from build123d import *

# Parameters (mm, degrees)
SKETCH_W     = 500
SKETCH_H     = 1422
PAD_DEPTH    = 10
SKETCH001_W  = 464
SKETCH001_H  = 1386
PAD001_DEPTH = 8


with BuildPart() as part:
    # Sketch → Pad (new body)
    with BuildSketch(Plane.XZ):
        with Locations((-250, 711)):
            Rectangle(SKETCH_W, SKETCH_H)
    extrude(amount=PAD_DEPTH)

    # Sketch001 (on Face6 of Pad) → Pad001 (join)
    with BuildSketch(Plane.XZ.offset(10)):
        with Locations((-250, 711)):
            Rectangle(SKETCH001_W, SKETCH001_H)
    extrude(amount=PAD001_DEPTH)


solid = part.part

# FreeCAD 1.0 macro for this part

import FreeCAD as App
import Part
import Sketcher

doc = App.newDocument("Part")
body = doc.addObject("PartDesign::Body", "Body")

# Sketch on XZ plane
sketch1 = body.newObject("Sketcher::SketchObject", "Sketch")
sketch1.AttachmentSupport = (doc.getObject("XZ_Plane"), [""])
sketch1.MapMode = "FlatFace"
sketch1.addGeometry(Part.LineSegment(App.Vector(-500, 1422, 0), App.Vector(-500, 0, 0)), False)
sketch1.addGeometry(Part.LineSegment(App.Vector(-500, 0, 0), App.Vector(0, 0, 0)), False)
sketch1.addGeometry(Part.LineSegment(App.Vector(0, 0, 0), App.Vector(0, 1422, 0)), False)
sketch1.addGeometry(Part.LineSegment(App.Vector(0, 1422, 0), App.Vector(-500, 1422, 0)), False)
sketch1.addConstraint(Sketcher.Constraint("Coincident", 0, 2, 1, 1))
sketch1.addConstraint(Sketcher.Constraint("Coincident", 1, 2, 2, 1))
sketch1.addConstraint(Sketcher.Constraint("Coincident", 2, 2, 3, 1))
sketch1.addConstraint(Sketcher.Constraint("Coincident", 3, 2, 0, 1))
sketch1.addConstraint(Sketcher.Constraint("Vertical", 0))
sketch1.addConstraint(Sketcher.Constraint("Horizontal", 1))
sketch1.addConstraint(Sketcher.Constraint("Vertical", 2))
sketch1.addConstraint(Sketcher.Constraint("Horizontal", 3))
sketch1.addConstraint(Sketcher.Constraint("Coincident", 1, 2, -1, 1))
sketch1.addConstraint(Sketcher.Constraint("DistanceX", 1, 1, 1, 2, 500.0))
sketch1.addConstraint(Sketcher.Constraint("DistanceY", 0, 2, 0, 1, 1422.0))
pad1 = body.newObject("PartDesign::Pad", "Pad")
pad1.Profile = sketch1
pad1.Length = 10

# Sketch on XZ plane
sketch2 = body.newObject("Sketcher::SketchObject", "Sketch001")
sketch2.AttachmentSupport = (doc.getObject("XZ_Plane"), [""])
sketch2.MapMode = "FlatFace"
sketch2.AttachmentOffset = App.Placement(App.Vector(0, 0, 10), App.Rotation())
sketch2.addGeometry(Part.LineSegment(App.Vector(-482, 1404, 0), App.Vector(-482, 18, 0)), False)
sketch2.addGeometry(Part.LineSegment(App.Vector(-482, 18, 0), App.Vector(-18, 18, 0)), False)
sketch2.addGeometry(Part.LineSegment(App.Vector(-18, 18, 0), App.Vector(-18, 1404, 0)), False)
sketch2.addGeometry(Part.LineSegment(App.Vector(-18, 1404, 0), App.Vector(-482, 1404, 0)), False)
sketch2.addConstraint(Sketcher.Constraint("Coincident", 0, 2, 1, 1))
sketch2.addConstraint(Sketcher.Constraint("Coincident", 1, 2, 2, 1))
sketch2.addConstraint(Sketcher.Constraint("Coincident", 2, 2, 3, 1))
sketch2.addConstraint(Sketcher.Constraint("Coincident", 3, 2, 0, 1))
sketch2.addConstraint(Sketcher.Constraint("Vertical", 0))
sketch2.addConstraint(Sketcher.Constraint("Horizontal", 1))
sketch2.addConstraint(Sketcher.Constraint("Vertical", 2))
sketch2.addConstraint(Sketcher.Constraint("Horizontal", 3))
sketch2.addConstraint(Sketcher.Constraint("DistanceX", 1, 1, 1, 2, 464.0))
sketch2.addConstraint(Sketcher.Constraint("DistanceY", 0, 2, 0, 1, 1386.0))
sketch2.addConstraint(Sketcher.Constraint("DistanceX", 0, 2, -1, 1, 482.0))
sketch2.addConstraint(Sketcher.Constraint("DistanceY", -1, 1, 0, 2, 18.0))
pad2 = body.newObject("PartDesign::Pad", "Pad001")
pad2.Profile = sketch2
pad2.Length = 8

doc.recompute()
